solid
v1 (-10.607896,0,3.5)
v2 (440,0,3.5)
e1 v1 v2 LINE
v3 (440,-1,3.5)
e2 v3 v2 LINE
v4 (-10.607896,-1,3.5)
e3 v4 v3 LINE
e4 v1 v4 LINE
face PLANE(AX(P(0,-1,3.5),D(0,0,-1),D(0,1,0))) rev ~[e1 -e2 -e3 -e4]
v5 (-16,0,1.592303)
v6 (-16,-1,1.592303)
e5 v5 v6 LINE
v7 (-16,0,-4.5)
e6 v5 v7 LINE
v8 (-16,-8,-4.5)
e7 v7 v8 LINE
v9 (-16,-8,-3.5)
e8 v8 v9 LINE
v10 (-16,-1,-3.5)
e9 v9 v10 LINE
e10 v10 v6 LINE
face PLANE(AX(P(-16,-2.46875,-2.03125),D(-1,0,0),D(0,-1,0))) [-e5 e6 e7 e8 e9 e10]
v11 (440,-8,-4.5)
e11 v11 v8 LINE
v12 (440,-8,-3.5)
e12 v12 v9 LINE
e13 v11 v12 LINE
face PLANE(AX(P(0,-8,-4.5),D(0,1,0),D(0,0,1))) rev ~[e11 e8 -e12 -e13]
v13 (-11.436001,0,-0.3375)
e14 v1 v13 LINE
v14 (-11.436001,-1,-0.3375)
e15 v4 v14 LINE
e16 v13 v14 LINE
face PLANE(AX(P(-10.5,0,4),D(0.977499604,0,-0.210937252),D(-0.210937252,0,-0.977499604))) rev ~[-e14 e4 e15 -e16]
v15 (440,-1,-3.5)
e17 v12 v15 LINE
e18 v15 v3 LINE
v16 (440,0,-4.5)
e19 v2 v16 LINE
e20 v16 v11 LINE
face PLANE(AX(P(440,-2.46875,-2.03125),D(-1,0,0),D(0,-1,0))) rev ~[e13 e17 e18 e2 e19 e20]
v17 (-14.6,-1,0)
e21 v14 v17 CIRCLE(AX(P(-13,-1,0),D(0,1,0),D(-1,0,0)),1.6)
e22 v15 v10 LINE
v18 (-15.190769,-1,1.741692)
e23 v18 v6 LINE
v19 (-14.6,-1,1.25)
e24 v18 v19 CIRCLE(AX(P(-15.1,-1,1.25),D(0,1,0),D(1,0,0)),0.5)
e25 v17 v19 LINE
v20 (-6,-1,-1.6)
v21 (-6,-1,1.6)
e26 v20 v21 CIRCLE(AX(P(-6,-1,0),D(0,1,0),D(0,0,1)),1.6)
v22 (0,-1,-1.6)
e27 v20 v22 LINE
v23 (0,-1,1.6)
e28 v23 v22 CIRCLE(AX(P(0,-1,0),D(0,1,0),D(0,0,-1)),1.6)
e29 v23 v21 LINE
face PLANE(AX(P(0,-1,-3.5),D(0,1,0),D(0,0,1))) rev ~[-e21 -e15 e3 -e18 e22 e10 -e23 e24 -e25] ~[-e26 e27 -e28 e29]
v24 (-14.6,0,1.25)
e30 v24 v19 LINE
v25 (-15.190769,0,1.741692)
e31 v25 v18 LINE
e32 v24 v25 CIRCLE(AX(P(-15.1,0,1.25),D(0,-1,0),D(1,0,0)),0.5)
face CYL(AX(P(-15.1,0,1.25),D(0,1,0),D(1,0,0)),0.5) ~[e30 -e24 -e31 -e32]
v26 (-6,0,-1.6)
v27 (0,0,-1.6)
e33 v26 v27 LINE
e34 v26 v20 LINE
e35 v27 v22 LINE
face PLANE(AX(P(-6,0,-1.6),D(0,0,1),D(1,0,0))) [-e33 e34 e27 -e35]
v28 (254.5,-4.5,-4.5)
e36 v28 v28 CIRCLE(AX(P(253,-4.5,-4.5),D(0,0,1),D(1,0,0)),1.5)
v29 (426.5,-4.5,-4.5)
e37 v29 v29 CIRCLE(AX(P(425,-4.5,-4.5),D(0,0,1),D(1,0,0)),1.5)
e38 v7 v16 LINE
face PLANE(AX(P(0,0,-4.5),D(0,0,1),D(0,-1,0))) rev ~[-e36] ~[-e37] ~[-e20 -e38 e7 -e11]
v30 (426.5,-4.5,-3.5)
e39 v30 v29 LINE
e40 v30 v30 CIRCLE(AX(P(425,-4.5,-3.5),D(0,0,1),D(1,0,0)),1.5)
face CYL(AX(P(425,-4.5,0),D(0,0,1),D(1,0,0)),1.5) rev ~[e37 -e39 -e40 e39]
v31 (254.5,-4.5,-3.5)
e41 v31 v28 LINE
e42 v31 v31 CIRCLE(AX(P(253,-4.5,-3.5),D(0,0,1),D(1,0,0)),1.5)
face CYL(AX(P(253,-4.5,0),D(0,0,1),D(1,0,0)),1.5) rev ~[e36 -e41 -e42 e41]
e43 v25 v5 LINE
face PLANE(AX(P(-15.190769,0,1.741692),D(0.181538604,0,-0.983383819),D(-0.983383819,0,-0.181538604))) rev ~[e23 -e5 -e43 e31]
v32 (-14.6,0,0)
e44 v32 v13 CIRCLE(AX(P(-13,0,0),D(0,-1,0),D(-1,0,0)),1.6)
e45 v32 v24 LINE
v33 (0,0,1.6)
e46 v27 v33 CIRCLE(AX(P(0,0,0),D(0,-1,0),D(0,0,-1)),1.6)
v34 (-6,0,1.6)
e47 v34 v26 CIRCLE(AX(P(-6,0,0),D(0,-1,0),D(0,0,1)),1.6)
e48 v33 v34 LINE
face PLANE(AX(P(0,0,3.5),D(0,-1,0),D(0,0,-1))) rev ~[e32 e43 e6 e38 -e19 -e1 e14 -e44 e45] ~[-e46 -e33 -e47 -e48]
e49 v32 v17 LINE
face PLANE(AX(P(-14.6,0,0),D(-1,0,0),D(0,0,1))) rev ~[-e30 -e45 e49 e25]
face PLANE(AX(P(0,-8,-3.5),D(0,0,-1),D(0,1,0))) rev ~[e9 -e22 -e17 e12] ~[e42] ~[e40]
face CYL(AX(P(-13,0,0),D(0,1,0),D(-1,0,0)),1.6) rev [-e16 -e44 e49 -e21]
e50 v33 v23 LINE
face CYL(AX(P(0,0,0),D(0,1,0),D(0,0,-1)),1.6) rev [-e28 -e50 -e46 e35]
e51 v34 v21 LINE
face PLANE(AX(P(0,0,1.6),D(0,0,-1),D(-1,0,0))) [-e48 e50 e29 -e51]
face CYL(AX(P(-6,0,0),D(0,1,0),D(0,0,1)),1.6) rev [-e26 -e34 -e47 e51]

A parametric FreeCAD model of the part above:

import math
import FreeCAD as App
import Part
import Sketcher

V = App.Vector
Q = App.Units.Quantity

doc = App.newDocument("Part")
params = doc.addObject("Spreadsheet::Sheet", "Params")
for row, (alias, value) in enumerate([
    ("sketch1_width", "8 mm"),
    ("sketch1_width2", "1 mm"),
    ("pad1_length", "440 mm"),
    ("pad1_length2", "16 mm"),
    ("sketch2_radius", "1.6 mm"),
    ("sketch2_radius2", "0.5 mm"),
    ("sketch2_width", "6 mm"),
    ("sketch2_height", "2.5 mm"),
    ("sketch2_height2", "1.25 mm"),
    ("pocket1_length", "5 mm"),
    ("sketch3_diameter", "3 mm"),
    ("pocket2_length", "5 mm"),
], start=1):
    params.set(f"A{row}", alias)
    params.set(f"B{row}", "=" + value)
    params.setAlias(f"B{row}", alias)

body = doc.addObject("PartDesign::Body", "Body")

# Sketch on YZ plane
sketch1 = doc.addObject("Sketcher::SketchObject", "Sketch")
body.addObject(sketch1)
sketch1.AttachmentSupport = (doc.YZ_Plane, [""])
sketch1.MapMode = "FlatFace"
sketch1.addGeometry([
    Part.LineSegment(V(-8, -4.5, 0), V(0, -4.5, 0)),  # 0
    Part.LineSegment(V(0, -4.5, 0), V(0, 3.5, 0)),  # 1
    Part.LineSegment(V(0, 3.5, 0), V(-1, 3.5, 0)),  # 2
    Part.LineSegment(V(-1, 3.5, 0), V(-1, -3.5, 0)),  # 3
    Part.LineSegment(V(-1, -3.5, 0), V(-8, -3.5, 0)),  # 4
    Part.LineSegment(V(-8, -3.5, 0), V(-8, -4.5, 0)),  # 5
], False)
sketch1.addConstraint([
    Sketcher.Constraint("Coincident", 0, 2, 1, 1),
    Sketcher.Constraint("Coincident", 1, 2, 2, 1),
    Sketcher.Constraint("Coincident", 2, 2, 3, 1),
    Sketcher.Constraint("Coincident", 3, 2, 4, 1),
    Sketcher.Constraint("Coincident", 4, 2, 5, 1),
    Sketcher.Constraint("Coincident", 5, 2, 0, 1),
    Sketcher.Constraint("Horizontal", 0),
    Sketcher.Constraint("Vertical", 1),
    Sketcher.Constraint("Horizontal", 2),
    Sketcher.Constraint("Vertical", 3),
    Sketcher.Constraint("Horizontal", 4),
    Sketcher.Constraint("Vertical", 5),
    Sketcher.Constraint("PointOnObject", 0, 2, -2),
    Sketcher.Constraint("Equal", 0, 1),
    Sketcher.Constraint("Equal", 4, 3),
    Sketcher.Constraint("DistanceX", 0, 1, 0, 2, Q("8 mm")),
    Sketcher.Constraint("DistanceX", 2, 2, 2, 1, Q("1 mm")),
    Sketcher.Constraint("DistanceY", 0, 2, -1, 1, Q("4.5 mm")),
])
sketch1.setExpression("Constraints[15]", "Params.sketch1_width")
sketch1.setExpression("Constraints[16]", "Params.sketch1_width2")
pad1 = doc.addObject("PartDesign::Pad", "Pad")
body.addObject(pad1)
pad1.Profile = sketch1
pad1.Type = "TwoLengths"
pad1.setExpression("Length", "Params.pad1_length")
pad1.setExpression("Length2", "Params.pad1_length2")

# Sketch on XZ plane
sketch2 = doc.addObject("Sketcher::SketchObject", "Sketch001")
body.addObject(sketch2)
sketch2.AttachmentSupport = (doc.XZ_Plane, [""])
sketch2.MapMode = "FlatFace"
sketch2.addGeometry([
    Part.ArcOfCircle(Part.Circle(V(-6, 0, 0), V(0, 0, 1), 1.6), math.radians(90), math.radians(270)),  # 0
    Part.LineSegment(V(-6, -1.6, 0), V(0, -1.6, 0)),  # 1
    Part.ArcOfCircle(Part.Circle(V(0, 0, 0), V(0, 0, 1), 1.6), math.radians(-90), math.radians(90)),  # 2
    Part.LineSegment(V(0, 1.6, 0), V(-6, 1.6, 0)),  # 3
    Part.LineSegment(V(-10.5, 4, 0), V(-16.5, 4, 0)),  # 4
    Part.LineSegment(V(-16.5, 4, 0), V(-16.5, 1.5, 0)),  # 5
    Part.LineSegment(V(-16.5, 1.5, 0), V(-15.2, 1.7, 0)),  # 6
    Part.ArcOfCircle(Part.Circle(V(-15.1, 1.2, 0), V(0, 0, 1), 0.5), math.radians(0), math.radians(100)),  # 7
    Part.LineSegment(V(-14.6, 1.2, 0), V(-14.6, 0, 0)),  # 8
    Part.ArcOfCircle(Part.Circle(V(-13, 0, 0), V(0, 0, 1), 1.6), math.radians(180), math.radians(348)),  # 9
    Part.LineSegment(V(-11.4, -0.3, 0), V(-10.5, 4, 0)),  # 10
], False)
sketch2.addConstraint([
    Sketcher.Constraint("Tangent", 0, 2, 1, 1),
    Sketcher.Constraint("Tangent", 1, 2, 2, 1),
    Sketcher.Constraint("Tangent", 2, 2, 3, 1),
    Sketcher.Constraint("Tangent", 3, 2, 0, 1),
    Sketcher.Constraint("Coincident", 4, 2, 5, 1),
    Sketcher.Constraint("Coincident", 5, 2, 6, 1),
    Sketcher.Constraint("Tangent", 6, 2, 7, 2),
    Sketcher.Constraint("Tangent", 7, 1, 8, 1),
    Sketcher.Constraint("Tangent", 8, 2, 9, 1),
    Sketcher.Constraint("Tangent", 9, 2, 10, 1),
    Sketcher.Constraint("Coincident", 10, 2, 4, 1),
    Sketcher.Constraint("Horizontal", 1),
    Sketcher.Constraint("Horizontal", 3),
    Sketcher.Constraint("Horizontal", 4),
    Sketcher.Constraint("Vertical", 5),
    Sketcher.Constraint("Vertical", 8),
    Sketcher.Constraint("Coincident", 2, 3, -1, 1),
    Sketcher.Constraint("Equal", 2, 9),
    Sketcher.Constraint("PointOnObject", 9, 3, -1),
    Sketcher.Constraint("Equal", 3, 4),
    Sketcher.Constraint("Radius", 0, Q("1.6 mm")),
    Sketcher.Constraint("Radius", 7, Q("0.5 mm")),
    Sketcher.Constraint("DistanceX", 1, 1, 1, 2, Q("6 mm")),
    Sketcher.Constraint("DistanceY", 5, 2, 5, 1, Q("2.5 mm")),
    Sketcher.Constraint("DistanceX", 9, 3, -1, 1, Q("13 mm")),
    Sketcher.Constraint("DistanceY", -1, 1, 4, 2, Q("4 mm")),
    Sketcher.Constraint("DistanceY", 8, 2, 8, 1, Q("1.25 mm")),
    Sketcher.Constraint("DistanceX", 4, 2, -1, 1, Q("16.5 mm")),
])
sketch2.setExpression("Constraints[20]", "Params.sketch2_radius")
sketch2.setExpression("Constraints[21]", "Params.sketch2_radius2")
sketch2.setExpression("Constraints[22]", "Params.sketch2_width")
sketch2.setExpression("Constraints[23]", "Params.sketch2_height")
sketch2.setExpression("Constraints[26]", "Params.sketch2_height2")
pocket1 = doc.addObject("PartDesign::Pocket", "Pocket")
body.addObject(pocket1)
pocket1.Profile = sketch2
pocket1.setExpression("Length", "Params.pocket1_length")
pocket1.Reversed = True

# Sketch on XY plane
sketch3 = doc.addObject("Sketcher::SketchObject", "Sketch002")
body.addObject(sketch3)
sketch3.AttachmentSupport = (doc.XY_Plane, [""])
sketch3.MapMode = "FlatFace"
sketch3.addGeometry([
    Part.Circle(V(425, -4.5, 0), V(0, 0, 1), 1.5),
    Part.Circle(V(253, -4.5, 0), V(0, 0, 1), 1.5),
], False)
sketch3.addConstraint([
    Sketcher.Constraint("Equal", 0, 1),
    Sketcher.Constraint("Horizontal", 0, 3, 1, 3),
    Sketcher.Constraint("Diameter", 0, Q("3 mm")),
    Sketcher.Constraint("DistanceX", -1, 1, 0, 3, Q("425 mm")),
    Sketcher.Constraint("DistanceX", -1, 1, 1, 3, Q("253 mm")),
    Sketcher.Constraint("DistanceY", 0, 3, -1, 1, Q("4.5 mm")),
])
sketch3.setExpression("Constraints[2]", "Params.sketch3_diameter")
pocket2 = doc.addObject("PartDesign::Pocket", "Pocket001")
body.addObject(pocket2)
pocket2.Profile = sketch3
pocket2.setExpression("Length", "Params.pocket2_length")

doc.recompute()
